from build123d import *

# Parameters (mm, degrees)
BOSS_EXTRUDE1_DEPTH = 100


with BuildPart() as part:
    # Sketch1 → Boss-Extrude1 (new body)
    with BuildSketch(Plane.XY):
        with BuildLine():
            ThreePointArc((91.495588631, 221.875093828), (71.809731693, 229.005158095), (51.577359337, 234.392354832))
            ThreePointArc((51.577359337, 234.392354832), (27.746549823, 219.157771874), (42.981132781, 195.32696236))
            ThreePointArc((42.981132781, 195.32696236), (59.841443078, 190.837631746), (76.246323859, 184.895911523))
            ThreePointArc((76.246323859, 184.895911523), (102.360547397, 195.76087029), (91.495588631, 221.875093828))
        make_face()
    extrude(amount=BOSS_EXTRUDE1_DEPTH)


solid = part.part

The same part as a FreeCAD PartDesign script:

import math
import FreeCAD as App
import Part
import Sketcher

V = App.Vector

doc = App.newDocument("Part")
body = doc.addObject("PartDesign::Body", "Body")

sketch1 = doc.addObject("Sketcher::SketchObject", "Sketch")
body.addObject(sketch1)
sketch1.AttachmentSupport = (doc.XY_Plane, [""])
sketch1.MapMode = "FlatFace"
sketch1.addGeometry([
    Part.ArcOfCircle(Part.Circle(V(0, 0, 0), V(0, 0, 1), 240), math.radians(67.590007), math.radians(77.590007)),
    Part.ArcOfCircle(Part.Circle(V(47.279246, 214.859659, 0), V(0, 0, 1), 20), math.radians(77.590007), math.radians(257.590007)),
    Part.ArcOfCircle(Part.Circle(V(0, 0, 0), V(0, 0, 1), 200), math.radians(67.590007), math.radians(77.590007)),
    Part.ArcOfCircle(Part.Circle(V(83.870956, 203.385503, 0), V(0, 0, 1), 20), math.radians(-112.409993), math.radians(67.590007)),
], False)
sketch1.addConstraint([
    Sketcher.Constraint("Tangent", 0, 2, 1, 1),
    Sketcher.Constraint("Tangent", 1, 2, 2, 2),
    Sketcher.Constraint("Tangent", 2, 1, 3, 1),
    Sketcher.Constraint("Tangent", 3, 2, 0, 1),
    Sketcher.Constraint("Coincident", 0, 3, -1, 1),
    Sketcher.Constraint("Coincident", 2, 3, -1, 1),
    Sketcher.Constraint("Radius", 0, 240.0),
    Sketcher.Constraint("Radius", 1, 20.0),
    Sketcher.Constraint("DistanceY", -1, 1, 1, 3, 214.859659),
    Sketcher.Constraint("DistanceY", -1, 1, 2, 1, 184.895912),
])
pad1 = doc.addObject("PartDesign::Pad", "Pad")
body.addObject(pad1)
pad1.Profile = sketch1
pad1.Length = 100

doc.recompute()
